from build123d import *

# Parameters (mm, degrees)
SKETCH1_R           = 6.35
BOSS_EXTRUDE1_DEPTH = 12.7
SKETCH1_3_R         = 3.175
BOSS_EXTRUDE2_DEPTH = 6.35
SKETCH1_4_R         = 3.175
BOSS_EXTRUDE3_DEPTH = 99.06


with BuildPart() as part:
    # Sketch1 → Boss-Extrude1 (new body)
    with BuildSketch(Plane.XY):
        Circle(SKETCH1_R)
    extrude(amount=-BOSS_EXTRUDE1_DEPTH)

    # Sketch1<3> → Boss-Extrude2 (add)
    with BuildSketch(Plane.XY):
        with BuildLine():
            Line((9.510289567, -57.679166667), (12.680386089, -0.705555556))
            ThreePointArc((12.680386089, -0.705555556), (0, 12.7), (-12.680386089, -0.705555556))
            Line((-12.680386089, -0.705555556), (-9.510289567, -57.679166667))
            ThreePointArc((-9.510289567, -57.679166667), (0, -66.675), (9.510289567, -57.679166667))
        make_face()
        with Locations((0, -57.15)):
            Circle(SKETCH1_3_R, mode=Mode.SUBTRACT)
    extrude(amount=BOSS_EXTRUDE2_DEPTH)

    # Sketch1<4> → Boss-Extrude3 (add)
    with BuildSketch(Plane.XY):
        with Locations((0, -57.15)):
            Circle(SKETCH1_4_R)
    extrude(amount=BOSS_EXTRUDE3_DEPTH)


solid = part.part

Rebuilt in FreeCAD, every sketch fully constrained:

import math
import FreeCAD as App
import Part
import Sketcher
Q = App.Units.Quantity

doc = App.newDocument("Part")
body = doc.addObject("PartDesign::Body", "Body")

sketch1 = doc.addObject("Sketcher::SketchObject", "Sketch")
body.addObject(sketch1)
sketch1.AttachmentSupport = (doc.XY_Plane, [""])
sketch1.MapMode = "FlatFace"
sketch1.addGeometry(Part.Circle(App.Vector(0, 0, 0), App.Vector(0, 0, 1), 6.35), False)
sketch1.addConstraint([
    Sketcher.Constraint("Coincident", 0, 3, -1, 1),
    Sketcher.Constraint("Diameter", 0, Q("0.5 in")),
])
pad1 = doc.addObject("PartDesign::Pad", "Pad")
body.addObject(pad1)
pad1.Profile = sketch1
pad1.Length = Q("0.5 in")
pad1.Reversed = True

sketch2 = doc.addObject("Sketcher::SketchObject", "Sketch001")
body.addObject(sketch2)
sketch2.AttachmentSupport = (doc.XY_Plane, [""])
sketch2.MapMode = "FlatFace"
sketch2.addGeometry([
    Part.LineSegment(App.Vector(9.51029, -57.679167, 0), App.Vector(12.680386, -0.705556, 0)),
    Part.ArcOfCircle(Part.Circle(App.Vector(0, 0, 0), App.Vector(0, 0, 1), 12.7), math.radians(-3.184739), math.radians(183.184739)),
    Part.LineSegment(App.Vector(-12.680386, -0.705556, 0), App.Vector(-9.51029, -57.679167, 0)),
    Part.ArcOfCircle(Part.Circle(App.Vector(0, -57.15, 0), App.Vector(0, 0, 1), 9.525), math.radians(-176.815261), math.radians(-3.184739)),
    Part.Circle(App.Vector(0, -57.15, 0), App.Vector(0, 0, 1), 3.175),
], False)
sketch2.addConstraint([
    Sketcher.Constraint("Tangent", 0, 2, 1, 1),
    Sketcher.Constraint("Tangent", 1, 2, 2, 1),
    Sketcher.Constraint("Tangent", 2, 2, 3, 1),
    Sketcher.Constraint("Tangent", 3, 2, 0, 1),
    Sketcher.Constraint("Coincident", 1, 3, -1, 1),
    Sketcher.Constraint("Coincident", 4, 3, 3, 3),
    Sketcher.Constraint("PointOnObject", 3, 3, -2),
    Sketcher.Constraint("Radius", 1, Q("0.5 in")),
    Sketcher.Constraint("Diameter", 4, Q("0.25 in")),
    Sketcher.Constraint("Radius", 3, Q("0.375 in")),
    Sketcher.Constraint("DistanceY", 3, 3, -1, 1, Q("2.25 in")),
])
pad2 = doc.addObject("PartDesign::Pad", "Pad001")
body.addObject(pad2)
pad2.Profile = sketch2
pad2.Length = Q("0.25 in")

sketch3 = doc.addObject("Sketcher::SketchObject", "Sketch002")
body.addObject(sketch3)
sketch3.AttachmentSupport = (doc.XY_Plane, [""])
sketch3.MapMode = "FlatFace"
sketch3.addGeometry(Part.Circle(App.Vector(0, -57.15, 0), App.Vector(0, 0, 1), 3.175), False)
sketch3.addConstraint([
    Sketcher.Constraint("PointOnObject", 0, 3, -2),
    Sketcher.Constraint("Diameter", 0, Q("0.25 in")),
    Sketcher.Constraint("DistanceY", 0, 3, -1, 1, Q("2.25 in")),
])
pad3 = doc.addObject("PartDesign::Pad", "Pad002")
body.addObject(pad3)
pad3.Profile = sketch3
pad3.Length = Q("3.9 in")

doc.recompute()
